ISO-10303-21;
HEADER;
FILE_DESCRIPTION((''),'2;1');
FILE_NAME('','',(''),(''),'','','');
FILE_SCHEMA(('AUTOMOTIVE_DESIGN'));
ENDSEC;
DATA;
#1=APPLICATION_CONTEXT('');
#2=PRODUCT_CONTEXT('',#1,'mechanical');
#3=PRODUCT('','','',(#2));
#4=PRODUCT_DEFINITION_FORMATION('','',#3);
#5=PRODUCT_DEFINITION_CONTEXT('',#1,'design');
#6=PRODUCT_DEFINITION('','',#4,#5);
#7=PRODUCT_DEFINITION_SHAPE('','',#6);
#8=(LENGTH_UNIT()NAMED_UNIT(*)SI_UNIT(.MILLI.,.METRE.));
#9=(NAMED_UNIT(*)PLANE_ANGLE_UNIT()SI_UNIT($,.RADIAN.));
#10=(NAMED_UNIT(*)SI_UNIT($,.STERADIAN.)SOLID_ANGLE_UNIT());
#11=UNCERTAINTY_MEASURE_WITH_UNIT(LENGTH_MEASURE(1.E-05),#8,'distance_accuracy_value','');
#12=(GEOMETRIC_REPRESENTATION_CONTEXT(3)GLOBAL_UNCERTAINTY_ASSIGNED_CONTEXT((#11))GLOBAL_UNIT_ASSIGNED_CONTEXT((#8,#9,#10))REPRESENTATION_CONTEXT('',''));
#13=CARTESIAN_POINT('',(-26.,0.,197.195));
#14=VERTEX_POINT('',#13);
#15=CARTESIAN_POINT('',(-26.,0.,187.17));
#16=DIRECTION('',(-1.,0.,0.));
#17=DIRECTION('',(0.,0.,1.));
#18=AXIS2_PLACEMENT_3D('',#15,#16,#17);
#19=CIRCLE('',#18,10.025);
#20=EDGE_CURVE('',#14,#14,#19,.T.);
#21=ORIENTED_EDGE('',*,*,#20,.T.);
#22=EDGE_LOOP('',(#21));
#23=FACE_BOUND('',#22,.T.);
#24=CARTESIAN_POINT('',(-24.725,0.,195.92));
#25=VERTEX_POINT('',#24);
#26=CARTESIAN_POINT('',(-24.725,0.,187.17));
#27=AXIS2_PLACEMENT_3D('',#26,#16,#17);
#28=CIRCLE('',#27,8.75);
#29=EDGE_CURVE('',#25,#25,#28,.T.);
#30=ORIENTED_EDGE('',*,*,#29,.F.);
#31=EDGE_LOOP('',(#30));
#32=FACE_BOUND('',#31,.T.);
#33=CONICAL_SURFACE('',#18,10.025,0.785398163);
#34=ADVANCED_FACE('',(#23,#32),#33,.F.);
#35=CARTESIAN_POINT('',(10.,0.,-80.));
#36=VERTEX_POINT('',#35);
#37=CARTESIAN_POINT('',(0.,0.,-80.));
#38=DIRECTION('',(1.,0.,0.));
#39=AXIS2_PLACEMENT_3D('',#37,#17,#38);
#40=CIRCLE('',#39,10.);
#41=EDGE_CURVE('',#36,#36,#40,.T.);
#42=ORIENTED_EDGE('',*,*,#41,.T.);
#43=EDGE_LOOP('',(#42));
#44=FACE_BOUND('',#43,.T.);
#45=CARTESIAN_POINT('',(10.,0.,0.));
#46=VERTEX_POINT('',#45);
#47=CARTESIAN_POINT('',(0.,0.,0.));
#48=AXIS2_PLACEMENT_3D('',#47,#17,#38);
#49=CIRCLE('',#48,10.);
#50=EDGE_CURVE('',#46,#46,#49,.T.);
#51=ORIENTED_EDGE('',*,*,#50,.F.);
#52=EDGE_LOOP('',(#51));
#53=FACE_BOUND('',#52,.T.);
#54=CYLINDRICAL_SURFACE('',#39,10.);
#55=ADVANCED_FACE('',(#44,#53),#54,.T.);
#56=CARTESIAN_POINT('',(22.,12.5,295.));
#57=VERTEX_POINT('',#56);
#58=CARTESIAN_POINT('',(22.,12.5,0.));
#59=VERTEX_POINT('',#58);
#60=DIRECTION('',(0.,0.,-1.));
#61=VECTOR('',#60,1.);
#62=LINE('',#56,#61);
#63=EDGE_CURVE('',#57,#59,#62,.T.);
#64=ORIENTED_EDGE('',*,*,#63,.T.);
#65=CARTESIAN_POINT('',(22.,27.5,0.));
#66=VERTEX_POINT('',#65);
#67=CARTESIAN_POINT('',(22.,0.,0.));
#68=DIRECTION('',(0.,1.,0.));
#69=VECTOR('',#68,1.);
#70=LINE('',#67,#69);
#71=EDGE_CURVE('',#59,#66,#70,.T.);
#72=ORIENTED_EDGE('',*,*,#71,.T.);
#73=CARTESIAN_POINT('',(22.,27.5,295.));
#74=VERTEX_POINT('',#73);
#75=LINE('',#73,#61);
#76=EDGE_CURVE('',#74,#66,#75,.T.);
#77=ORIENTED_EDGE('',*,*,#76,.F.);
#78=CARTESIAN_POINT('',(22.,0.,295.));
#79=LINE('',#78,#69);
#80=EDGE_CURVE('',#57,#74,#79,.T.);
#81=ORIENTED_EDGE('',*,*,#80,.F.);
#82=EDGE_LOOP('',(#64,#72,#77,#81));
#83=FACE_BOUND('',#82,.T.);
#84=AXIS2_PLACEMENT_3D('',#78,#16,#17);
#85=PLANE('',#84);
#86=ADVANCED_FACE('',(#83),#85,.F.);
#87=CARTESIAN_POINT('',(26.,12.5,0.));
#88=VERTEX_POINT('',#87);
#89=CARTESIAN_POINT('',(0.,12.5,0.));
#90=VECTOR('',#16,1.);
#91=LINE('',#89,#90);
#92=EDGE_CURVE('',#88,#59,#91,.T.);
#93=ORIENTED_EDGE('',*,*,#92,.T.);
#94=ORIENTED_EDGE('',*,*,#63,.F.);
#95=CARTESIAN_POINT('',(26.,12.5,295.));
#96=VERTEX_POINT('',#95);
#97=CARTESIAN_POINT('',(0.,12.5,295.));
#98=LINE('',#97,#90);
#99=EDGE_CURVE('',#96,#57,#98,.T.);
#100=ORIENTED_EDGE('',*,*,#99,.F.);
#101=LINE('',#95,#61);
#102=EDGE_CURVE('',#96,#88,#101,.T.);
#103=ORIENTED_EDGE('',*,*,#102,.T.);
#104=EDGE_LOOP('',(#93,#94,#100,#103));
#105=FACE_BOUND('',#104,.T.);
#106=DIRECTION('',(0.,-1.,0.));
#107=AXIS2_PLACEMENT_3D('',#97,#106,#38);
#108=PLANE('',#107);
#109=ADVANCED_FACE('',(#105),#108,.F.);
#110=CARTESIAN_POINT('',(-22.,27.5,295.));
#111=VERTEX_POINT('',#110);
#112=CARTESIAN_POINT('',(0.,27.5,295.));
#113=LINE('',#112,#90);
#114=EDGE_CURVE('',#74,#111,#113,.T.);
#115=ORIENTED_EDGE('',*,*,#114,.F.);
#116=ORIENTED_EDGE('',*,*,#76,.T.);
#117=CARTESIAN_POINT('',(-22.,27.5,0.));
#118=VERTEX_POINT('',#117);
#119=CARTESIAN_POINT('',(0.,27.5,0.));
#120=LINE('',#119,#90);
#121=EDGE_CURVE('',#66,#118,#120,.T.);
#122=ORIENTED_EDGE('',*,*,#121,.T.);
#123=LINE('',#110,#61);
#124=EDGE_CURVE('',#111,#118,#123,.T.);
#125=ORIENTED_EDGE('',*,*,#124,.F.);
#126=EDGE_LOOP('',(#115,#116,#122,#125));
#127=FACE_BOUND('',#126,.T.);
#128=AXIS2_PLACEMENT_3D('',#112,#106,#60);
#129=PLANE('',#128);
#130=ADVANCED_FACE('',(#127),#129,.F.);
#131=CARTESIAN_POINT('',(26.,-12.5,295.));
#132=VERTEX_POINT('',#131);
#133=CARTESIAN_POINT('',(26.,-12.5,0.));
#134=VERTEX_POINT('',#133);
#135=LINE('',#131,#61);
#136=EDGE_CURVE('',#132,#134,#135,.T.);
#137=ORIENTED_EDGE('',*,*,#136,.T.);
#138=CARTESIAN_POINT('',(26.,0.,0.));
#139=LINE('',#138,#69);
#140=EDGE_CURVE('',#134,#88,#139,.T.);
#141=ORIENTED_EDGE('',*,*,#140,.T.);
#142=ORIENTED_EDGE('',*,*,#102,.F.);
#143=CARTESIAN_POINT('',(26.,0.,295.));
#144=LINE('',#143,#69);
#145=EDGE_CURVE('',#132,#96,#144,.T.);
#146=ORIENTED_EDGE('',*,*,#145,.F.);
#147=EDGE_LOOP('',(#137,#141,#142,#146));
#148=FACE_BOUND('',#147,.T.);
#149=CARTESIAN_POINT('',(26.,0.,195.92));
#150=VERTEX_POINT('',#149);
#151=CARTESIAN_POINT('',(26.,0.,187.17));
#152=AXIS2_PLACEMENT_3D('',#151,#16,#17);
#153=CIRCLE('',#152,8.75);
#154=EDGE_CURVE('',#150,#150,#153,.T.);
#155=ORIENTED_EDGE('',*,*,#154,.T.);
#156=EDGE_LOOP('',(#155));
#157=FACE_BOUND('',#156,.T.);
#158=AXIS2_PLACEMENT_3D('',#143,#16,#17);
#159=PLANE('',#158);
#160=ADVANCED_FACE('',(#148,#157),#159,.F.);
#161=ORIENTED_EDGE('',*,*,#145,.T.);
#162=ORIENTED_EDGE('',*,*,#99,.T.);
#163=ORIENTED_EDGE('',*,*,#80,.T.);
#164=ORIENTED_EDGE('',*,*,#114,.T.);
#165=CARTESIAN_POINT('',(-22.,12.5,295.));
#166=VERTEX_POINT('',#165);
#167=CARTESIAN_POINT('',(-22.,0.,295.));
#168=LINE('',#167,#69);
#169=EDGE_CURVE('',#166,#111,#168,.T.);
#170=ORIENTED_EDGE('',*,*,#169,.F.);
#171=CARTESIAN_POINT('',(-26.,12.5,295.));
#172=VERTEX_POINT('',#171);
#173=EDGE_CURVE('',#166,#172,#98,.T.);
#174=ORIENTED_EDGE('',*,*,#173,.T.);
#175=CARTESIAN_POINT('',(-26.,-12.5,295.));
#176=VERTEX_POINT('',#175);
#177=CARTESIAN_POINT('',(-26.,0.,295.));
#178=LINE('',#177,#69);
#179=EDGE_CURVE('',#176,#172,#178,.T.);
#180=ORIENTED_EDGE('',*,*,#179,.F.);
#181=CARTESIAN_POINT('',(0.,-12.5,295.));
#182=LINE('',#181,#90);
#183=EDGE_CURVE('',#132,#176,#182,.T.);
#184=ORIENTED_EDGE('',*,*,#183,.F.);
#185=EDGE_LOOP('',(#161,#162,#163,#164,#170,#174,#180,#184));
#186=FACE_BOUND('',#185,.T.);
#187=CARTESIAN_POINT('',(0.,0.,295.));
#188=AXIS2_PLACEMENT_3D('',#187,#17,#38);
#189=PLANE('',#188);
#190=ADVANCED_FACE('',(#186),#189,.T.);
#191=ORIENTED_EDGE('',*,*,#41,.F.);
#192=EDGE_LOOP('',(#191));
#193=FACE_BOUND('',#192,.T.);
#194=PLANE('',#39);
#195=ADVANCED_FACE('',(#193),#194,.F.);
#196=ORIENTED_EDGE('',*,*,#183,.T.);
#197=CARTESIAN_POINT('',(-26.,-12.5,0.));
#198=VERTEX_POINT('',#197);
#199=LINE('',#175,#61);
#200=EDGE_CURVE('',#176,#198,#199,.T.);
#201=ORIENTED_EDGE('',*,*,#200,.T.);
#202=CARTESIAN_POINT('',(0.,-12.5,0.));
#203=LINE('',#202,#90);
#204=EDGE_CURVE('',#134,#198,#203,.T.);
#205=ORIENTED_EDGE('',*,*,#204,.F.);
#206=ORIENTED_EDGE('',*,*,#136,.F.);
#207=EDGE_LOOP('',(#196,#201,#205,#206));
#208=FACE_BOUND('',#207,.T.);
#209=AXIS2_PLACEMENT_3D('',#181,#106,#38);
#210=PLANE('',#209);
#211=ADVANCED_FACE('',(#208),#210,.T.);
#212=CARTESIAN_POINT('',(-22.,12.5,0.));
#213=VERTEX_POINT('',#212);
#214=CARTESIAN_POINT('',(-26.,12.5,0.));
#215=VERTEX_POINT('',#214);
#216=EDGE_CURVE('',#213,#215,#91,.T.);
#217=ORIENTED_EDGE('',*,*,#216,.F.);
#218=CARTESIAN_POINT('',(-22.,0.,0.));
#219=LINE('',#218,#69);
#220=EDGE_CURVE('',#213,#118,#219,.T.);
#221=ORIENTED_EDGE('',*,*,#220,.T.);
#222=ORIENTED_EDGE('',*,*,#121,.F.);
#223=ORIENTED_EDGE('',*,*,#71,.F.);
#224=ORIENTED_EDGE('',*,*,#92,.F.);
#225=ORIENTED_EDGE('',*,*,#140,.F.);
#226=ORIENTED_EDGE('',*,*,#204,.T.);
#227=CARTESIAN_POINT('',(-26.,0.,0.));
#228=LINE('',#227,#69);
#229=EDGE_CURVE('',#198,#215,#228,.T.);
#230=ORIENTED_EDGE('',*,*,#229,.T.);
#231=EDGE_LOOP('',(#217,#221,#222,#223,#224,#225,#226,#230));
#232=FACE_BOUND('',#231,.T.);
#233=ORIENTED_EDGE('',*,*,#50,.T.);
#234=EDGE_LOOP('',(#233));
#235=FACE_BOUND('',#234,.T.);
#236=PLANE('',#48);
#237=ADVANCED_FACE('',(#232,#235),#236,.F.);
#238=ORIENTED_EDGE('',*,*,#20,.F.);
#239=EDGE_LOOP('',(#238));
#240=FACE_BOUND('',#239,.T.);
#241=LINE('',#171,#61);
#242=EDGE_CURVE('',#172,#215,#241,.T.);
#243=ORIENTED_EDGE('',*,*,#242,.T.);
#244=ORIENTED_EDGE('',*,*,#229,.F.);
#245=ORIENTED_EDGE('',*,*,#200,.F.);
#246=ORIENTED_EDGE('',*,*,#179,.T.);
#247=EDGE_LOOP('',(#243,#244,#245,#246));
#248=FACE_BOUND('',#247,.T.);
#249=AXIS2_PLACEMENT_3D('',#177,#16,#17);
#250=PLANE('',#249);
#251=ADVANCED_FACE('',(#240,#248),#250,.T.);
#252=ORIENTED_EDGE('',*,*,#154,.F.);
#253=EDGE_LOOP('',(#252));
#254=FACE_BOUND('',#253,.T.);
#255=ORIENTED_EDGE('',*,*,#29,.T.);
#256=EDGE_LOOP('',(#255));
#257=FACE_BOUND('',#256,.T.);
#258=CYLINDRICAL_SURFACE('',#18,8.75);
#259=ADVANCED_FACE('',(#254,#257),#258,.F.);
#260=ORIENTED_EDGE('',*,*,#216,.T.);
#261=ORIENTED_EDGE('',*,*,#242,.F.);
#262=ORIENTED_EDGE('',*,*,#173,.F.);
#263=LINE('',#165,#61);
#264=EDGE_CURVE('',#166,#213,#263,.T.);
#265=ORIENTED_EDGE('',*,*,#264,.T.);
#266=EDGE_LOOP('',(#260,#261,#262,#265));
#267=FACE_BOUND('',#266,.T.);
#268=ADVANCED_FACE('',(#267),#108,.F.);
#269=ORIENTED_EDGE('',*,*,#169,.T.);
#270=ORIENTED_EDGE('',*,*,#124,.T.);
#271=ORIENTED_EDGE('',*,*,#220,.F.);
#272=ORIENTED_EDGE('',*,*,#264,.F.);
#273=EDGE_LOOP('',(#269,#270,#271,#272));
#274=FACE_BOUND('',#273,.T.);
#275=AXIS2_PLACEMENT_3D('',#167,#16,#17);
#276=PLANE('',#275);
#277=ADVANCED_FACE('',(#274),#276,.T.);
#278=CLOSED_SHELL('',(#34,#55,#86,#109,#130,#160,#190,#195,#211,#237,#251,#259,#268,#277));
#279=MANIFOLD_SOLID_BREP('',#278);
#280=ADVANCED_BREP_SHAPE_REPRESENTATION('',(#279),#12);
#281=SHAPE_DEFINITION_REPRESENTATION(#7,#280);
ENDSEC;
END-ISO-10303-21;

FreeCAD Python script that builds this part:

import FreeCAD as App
import Part
import Sketcher
Q = App.Units.Quantity


def add_polygon(sketch, points):
    """Adds a closed chain of lines whose ends are joined by coincident constraints."""
    first, n = sketch.GeometryCount, len(points)
    for a, b in zip(points, points[1:] + points[:1]):
        sketch.addGeometry(Part.LineSegment(App.Vector(*a, 0), App.Vector(*b, 0)), False)
    for i in range(n):
        sketch.addConstraint(Sketcher.Constraint("Coincident", first + i, 2, first + (i + 1) % n, 1))

doc = App.newDocument("Part")
body = doc.addObject("PartDesign::Body", "Body")

sketch1 = body.newObject("Sketcher::SketchObject", "Sketch")
sketch1.AttachmentSupport = (doc.getObject("XY_Plane"), [""])
sketch1.MapMode = "FlatFace"
add_polygon(sketch1, [(-26, -12.5), (26, -12.5), (26, 12.5), (22, 12.5), (22, 27.5), (-22, 27.5), (-22, 12.5), (-26, 12.5)])
sketch1.addConstraint([
    Sketcher.Constraint("Horizontal", 0),
    Sketcher.Constraint("Vertical", 1),
    Sketcher.Constraint("Horizontal", 2),
    Sketcher.Constraint("Vertical", 3),
    Sketcher.Constraint("Horizontal", 4),
    Sketcher.Constraint("Vertical", 5),
    Sketcher.Constraint("Horizontal", 6),
    Sketcher.Constraint("Vertical", 7),
    Sketcher.Constraint("Symmetric", 0, 2, 6, 2, -1, 1),
    Sketcher.Constraint("Symmetric", 2, 2, 5, 2, -2),
    Sketcher.Constraint("DistanceX", 0, 1, 0, 2, Q("52 mm")),
    Sketcher.Constraint("DistanceX", 2, 2, 2, 1, Q("4 mm")),
    Sketcher.Constraint("DistanceY", 1, 1, 1, 2, Q("25 mm")),
    Sketcher.Constraint("DistanceY", 3, 1, 3, 2, Q("15 mm")),
])
pad1 = body.newObject("PartDesign::Pad", "Pad")
pad1.Profile = sketch1
pad1.Length = 295

sketch2 = body.newObject("Sketcher::SketchObject", "Sketch001")
sketch2.AttachmentSupport = (doc.getObject("XY_Plane"), [""])
sketch2.MapMode = "FlatFace"
sketch2.addGeometry(Part.Circle(App.Vector(0, 0, 0), App.Vector(0, 0, 1), 10), False)
sketch2.addConstraint([
    Sketcher.Constraint("Coincident", 0, 3, -1, 1),
    Sketcher.Constraint("Diameter", 0, Q("20 mm")),
])
pad2 = body.newObject("PartDesign::Pad", "Pad001")
pad2.Profile = sketch2
pad2.Length = 80
pad2.Reversed = True

sketch3 = body.newObject("Sketcher::SketchObject", "Sketch002")
sketch3.AttachmentSupport = (doc.getObject("YZ_Plane"), [""])
sketch3.MapMode = "FlatFace"
sketch3.AttachmentOffset = App.Placement(App.Vector(0, 0, -26), App.Rotation())
sketch3.addGeometry(Part.Circle(App.Vector(0, 187, 0), App.Vector(0, 0, 1), 9), False)
sketch3.addConstraint([
    Sketcher.Constraint("PointOnObject", 0, 3, -2),
    Sketcher.Constraint("Diameter", 0, Q("17.5 mm")),
    Sketcher.Constraint("DistanceY", -1, 1, 0, 3, Q("187.17 mm")),
])
doc.recompute()
hole = body.newObject("PartDesign::Hole", "Hole")
hole.Profile = sketch3
hole.ThreadType = "None"
hole.Diameter = 17.5
hole.DepthType = "ThroughAll"
hole.HoleCutType = "Countersink"
hole.HoleCutDiameter = 20.05
hole.HoleCutCountersinkAngle = 90
hole.Reversed = True

doc.recompute()
